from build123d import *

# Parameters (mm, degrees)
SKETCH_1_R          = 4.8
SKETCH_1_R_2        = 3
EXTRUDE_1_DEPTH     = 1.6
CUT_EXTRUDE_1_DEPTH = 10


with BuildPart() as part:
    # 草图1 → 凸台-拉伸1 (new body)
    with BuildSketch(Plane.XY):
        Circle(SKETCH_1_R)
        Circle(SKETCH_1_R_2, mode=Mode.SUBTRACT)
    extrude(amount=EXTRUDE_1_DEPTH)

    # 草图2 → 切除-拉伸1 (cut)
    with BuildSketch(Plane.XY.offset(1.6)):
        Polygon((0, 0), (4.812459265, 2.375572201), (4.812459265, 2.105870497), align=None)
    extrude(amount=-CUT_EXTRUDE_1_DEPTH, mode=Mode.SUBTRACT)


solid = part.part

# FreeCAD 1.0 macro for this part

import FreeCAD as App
import Part
import Sketcher
from FreeCAD import Vector
Q = App.Units.Quantity


def add_polygon(sketch, points):
    """Adds a closed chain of lines whose ends are joined by coincident constraints."""
    first, n = sketch.GeometryCount, len(points)
    for a, b in zip(points, points[1:] + points[:1]):
        sketch.addGeometry(Part.LineSegment(App.Vector(*a, 0), App.Vector(*b, 0)), False)
    for i in range(n):
        sketch.addConstraint(Sketcher.Constraint("Coincident", first + i, 2, first + (i + 1) % n, 1))

doc = App.newDocument("Part")
body = doc.addObject("PartDesign::Body", "Body")

sketch1 = body.newObject("Sketcher::SketchObject", "Sketch")
sketch1.AttachmentSupport = (doc.getObject("XY_Plane"), [""])
sketch1.MapMode = "FlatFace"
sketch1.addGeometry([
    Part.Circle(Vector(0, 0, 0), Vector(0, 0, 1), 4.8),
    Part.Circle(Vector(0, 0, 0), Vector(0, 0, 1), 3),
], False)
sketch1.addConstraint([
    Sketcher.Constraint("Coincident", 0, 3, -1, 1),
    Sketcher.Constraint("Coincident", 1, 3, -1, 1),
    Sketcher.Constraint("Diameter", 1, Q("6 mm")),
    Sketcher.Constraint("Diameter", 0, Q("9.6 mm")),
])
pad1 = body.newObject("PartDesign::Pad", "Pad")
pad1.Profile = sketch1
pad1.Length = 1.6

sketch2 = body.newObject("Sketcher::SketchObject", "Sketch001")
sketch2.AttachmentSupport = (doc.getObject("XY_Plane"), [""])
sketch2.MapMode = "FlatFace"
sketch2.AttachmentOffset = App.Placement(Vector(0, 0, 1.6), App.Rotation())
add_polygon(sketch2, [(4.812459, 2.375572), (0, 0), (4.812459, 2.10587)])
sketch2.addConstraint([
    Sketcher.Constraint("Vertical", 2),
    Sketcher.Constraint("Coincident", 0, 2, -1, 1),
    Sketcher.Constraint("DistanceY", 2, 1, 2, 2, Q("0.269702 mm")),
    Sketcher.Constraint("DistanceX", -1, 1, 1, 2, Q("4.812459 mm")),
    Sketcher.Constraint("DistanceY", -1, 1, 1, 2, Q("2.10587 mm")),
])
pocket1 = body.newObject("PartDesign::Pocket", "Pocket")
pocket1.Profile = sketch2
pocket1.Length = 10

doc.recompute()
